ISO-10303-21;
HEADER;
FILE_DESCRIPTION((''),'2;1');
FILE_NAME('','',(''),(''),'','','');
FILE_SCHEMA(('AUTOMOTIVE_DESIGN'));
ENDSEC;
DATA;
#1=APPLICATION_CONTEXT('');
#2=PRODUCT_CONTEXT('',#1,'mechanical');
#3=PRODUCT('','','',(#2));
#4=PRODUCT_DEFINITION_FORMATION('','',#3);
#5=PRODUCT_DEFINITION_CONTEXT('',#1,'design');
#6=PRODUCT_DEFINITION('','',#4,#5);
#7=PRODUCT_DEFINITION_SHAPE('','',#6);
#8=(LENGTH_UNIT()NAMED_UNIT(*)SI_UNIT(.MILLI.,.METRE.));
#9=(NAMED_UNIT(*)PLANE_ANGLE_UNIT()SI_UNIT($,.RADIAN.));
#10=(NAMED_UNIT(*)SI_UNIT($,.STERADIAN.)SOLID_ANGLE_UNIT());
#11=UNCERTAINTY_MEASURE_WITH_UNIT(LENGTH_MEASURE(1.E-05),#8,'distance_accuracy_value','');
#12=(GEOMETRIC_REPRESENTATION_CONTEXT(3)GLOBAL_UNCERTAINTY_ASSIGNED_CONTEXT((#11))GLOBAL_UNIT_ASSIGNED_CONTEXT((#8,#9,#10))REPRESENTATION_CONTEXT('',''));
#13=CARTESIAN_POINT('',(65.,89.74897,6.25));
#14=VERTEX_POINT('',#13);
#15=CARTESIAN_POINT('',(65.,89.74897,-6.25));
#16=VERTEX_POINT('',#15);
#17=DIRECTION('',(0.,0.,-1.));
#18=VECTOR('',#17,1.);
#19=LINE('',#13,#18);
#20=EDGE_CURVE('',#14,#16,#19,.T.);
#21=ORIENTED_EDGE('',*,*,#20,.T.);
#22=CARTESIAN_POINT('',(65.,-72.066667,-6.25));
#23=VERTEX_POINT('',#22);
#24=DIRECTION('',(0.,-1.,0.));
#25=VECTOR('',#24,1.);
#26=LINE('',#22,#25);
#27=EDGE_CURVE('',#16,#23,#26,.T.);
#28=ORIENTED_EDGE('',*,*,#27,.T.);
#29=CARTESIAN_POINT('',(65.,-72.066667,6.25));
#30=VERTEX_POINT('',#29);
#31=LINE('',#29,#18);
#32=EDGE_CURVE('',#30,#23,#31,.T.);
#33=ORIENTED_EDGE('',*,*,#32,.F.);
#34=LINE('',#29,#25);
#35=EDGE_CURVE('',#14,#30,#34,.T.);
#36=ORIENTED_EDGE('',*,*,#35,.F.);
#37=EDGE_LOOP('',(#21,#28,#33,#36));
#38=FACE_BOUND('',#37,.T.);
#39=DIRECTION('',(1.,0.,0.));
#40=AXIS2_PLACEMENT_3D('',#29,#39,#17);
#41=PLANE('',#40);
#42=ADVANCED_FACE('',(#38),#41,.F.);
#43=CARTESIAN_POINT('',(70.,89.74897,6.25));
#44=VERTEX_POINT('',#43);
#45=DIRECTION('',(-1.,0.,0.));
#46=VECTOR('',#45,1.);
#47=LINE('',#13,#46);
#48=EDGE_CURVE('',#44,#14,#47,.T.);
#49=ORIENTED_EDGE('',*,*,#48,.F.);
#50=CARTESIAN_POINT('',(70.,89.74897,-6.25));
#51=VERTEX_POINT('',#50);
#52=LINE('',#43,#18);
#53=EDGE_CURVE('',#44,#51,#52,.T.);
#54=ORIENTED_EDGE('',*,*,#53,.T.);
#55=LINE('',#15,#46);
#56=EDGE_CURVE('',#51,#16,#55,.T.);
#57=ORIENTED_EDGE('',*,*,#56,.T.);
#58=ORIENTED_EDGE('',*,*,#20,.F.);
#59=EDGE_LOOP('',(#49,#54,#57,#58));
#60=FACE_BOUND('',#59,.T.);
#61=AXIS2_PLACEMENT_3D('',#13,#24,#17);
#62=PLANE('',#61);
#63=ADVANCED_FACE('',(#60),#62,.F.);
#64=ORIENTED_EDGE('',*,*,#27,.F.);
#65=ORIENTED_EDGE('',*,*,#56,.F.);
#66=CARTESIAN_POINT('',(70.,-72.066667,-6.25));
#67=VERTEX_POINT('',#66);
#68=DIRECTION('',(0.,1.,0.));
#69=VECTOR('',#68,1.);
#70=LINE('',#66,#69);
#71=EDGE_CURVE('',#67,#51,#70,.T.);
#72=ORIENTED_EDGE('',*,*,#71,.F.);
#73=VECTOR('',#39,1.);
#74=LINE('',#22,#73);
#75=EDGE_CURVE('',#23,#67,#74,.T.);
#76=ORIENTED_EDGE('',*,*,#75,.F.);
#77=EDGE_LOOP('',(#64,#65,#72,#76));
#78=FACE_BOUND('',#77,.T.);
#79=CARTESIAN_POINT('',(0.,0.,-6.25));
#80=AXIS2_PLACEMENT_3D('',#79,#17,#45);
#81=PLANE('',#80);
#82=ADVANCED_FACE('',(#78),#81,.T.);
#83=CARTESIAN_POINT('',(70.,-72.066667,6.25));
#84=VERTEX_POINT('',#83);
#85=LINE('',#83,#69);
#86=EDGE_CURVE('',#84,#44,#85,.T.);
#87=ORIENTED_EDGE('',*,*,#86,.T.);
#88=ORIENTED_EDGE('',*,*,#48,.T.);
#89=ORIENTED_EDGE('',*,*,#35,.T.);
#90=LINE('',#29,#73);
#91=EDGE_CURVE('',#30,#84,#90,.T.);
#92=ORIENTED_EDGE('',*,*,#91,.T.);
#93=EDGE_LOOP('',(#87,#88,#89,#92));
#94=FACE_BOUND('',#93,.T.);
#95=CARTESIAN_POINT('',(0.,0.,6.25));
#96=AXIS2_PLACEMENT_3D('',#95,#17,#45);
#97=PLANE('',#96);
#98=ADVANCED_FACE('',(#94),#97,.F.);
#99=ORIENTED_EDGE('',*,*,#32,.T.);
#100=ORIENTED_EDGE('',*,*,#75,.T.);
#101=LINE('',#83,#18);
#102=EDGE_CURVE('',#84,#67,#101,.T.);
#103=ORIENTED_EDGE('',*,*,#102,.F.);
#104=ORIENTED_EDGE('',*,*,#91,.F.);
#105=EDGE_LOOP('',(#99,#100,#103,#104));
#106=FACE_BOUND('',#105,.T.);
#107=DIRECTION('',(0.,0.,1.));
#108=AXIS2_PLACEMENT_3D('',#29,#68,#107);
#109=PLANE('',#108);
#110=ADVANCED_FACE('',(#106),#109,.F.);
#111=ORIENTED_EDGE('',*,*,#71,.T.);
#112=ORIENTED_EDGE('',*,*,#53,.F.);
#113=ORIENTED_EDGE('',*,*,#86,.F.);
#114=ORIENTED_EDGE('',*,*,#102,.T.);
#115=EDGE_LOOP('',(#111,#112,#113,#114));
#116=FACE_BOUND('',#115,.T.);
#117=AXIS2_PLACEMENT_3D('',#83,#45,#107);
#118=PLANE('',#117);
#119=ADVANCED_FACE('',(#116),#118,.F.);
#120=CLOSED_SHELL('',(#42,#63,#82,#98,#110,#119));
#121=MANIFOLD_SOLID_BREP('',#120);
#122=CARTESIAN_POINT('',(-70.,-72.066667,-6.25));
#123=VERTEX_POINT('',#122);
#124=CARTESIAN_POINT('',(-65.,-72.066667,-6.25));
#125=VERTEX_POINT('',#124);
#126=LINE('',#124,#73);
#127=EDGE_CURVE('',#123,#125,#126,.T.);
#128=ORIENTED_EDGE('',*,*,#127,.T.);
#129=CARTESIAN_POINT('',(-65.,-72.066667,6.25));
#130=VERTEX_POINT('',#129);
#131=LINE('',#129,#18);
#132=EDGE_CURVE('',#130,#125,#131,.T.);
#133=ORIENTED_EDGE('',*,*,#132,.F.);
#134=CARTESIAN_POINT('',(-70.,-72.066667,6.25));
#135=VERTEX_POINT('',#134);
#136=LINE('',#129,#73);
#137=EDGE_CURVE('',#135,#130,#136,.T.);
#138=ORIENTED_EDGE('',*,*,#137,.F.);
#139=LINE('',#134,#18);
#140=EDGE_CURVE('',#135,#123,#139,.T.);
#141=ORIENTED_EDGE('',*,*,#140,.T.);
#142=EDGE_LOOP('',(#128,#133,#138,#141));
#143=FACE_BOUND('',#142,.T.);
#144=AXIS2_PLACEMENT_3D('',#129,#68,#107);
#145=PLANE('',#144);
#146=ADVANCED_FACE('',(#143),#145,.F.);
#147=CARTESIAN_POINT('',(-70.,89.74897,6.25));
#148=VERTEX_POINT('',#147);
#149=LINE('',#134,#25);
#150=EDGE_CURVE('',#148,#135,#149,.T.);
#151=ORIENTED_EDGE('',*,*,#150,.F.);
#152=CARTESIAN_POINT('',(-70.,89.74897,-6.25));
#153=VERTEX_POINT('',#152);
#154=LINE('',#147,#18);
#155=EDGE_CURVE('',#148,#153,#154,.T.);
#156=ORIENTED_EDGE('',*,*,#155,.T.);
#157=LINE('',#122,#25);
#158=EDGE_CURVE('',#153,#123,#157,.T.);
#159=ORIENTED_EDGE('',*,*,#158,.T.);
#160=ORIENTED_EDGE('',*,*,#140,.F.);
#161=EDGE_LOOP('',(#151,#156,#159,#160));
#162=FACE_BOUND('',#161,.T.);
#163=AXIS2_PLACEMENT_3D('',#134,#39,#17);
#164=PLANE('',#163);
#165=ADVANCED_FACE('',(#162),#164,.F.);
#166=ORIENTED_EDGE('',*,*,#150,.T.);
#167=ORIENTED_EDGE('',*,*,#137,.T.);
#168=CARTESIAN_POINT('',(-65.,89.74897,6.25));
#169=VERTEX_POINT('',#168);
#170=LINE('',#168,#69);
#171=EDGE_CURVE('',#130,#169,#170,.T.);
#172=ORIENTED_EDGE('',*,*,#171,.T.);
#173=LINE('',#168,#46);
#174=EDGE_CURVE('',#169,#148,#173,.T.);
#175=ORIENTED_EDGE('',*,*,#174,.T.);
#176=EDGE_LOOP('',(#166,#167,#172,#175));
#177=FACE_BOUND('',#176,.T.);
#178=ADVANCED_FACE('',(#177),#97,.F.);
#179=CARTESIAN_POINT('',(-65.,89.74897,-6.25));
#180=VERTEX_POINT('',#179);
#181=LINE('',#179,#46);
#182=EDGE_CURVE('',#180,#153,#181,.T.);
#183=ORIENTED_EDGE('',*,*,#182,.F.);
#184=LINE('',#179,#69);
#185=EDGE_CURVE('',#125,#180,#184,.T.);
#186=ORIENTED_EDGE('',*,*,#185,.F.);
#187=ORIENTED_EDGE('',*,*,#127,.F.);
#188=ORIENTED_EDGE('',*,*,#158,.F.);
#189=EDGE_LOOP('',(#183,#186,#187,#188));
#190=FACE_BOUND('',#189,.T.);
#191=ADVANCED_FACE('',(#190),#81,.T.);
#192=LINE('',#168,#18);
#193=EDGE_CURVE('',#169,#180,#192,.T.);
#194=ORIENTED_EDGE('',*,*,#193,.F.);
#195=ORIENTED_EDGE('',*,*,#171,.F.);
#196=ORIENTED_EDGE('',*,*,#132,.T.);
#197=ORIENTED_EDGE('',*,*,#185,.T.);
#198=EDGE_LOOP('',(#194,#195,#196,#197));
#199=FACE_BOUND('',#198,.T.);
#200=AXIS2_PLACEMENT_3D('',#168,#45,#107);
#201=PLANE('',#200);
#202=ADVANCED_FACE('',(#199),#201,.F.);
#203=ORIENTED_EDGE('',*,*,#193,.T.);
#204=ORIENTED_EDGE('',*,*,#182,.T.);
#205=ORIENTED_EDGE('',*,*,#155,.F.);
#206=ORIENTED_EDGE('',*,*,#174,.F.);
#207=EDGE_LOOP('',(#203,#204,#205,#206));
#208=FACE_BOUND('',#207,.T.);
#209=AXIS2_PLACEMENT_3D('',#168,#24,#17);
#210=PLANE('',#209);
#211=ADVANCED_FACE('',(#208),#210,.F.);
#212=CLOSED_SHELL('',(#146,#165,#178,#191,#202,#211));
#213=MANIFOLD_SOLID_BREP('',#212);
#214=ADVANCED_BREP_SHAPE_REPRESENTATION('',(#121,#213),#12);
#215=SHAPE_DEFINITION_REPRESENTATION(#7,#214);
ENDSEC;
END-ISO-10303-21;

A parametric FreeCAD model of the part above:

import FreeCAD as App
import Part
import Sketcher
from FreeCAD import Vector
Q = App.Units.Quantity

doc = App.newDocument("Part")
body = doc.addObject("PartDesign::Body", "Body")

# Sketch on XY plane
sketch1 = doc.addObject("Sketcher::SketchObject", "Sketch")
body.addObject(sketch1)
sketch1.AttachmentSupport = (doc.XY_Plane, [""])
sketch1.MapMode = "FlatFace"
sketch1.addGeometry([
    Part.LineSegment(Vector(-70, 90, 0), Vector(-70, -72, 0)),
    Part.LineSegment(Vector(-70, -72, 0), Vector(-65, -72, 0)),
    Part.LineSegment(Vector(-65, -72, 0), Vector(-65, 90, 0)),
    Part.LineSegment(Vector(-65, 90, 0), Vector(-70, 90, 0)),
], False)
sketch1.addConstraint([
    Sketcher.Constraint("Coincident", 0, 2, 1, 1),
    Sketcher.Constraint("Coincident", 1, 2, 2, 1),
    Sketcher.Constraint("Coincident", 2, 2, 3, 1),
    Sketcher.Constraint("Coincident", 3, 2, 0, 1),
    Sketcher.Constraint("Vertical", 0),
    Sketcher.Constraint("Horizontal", 1),
    Sketcher.Constraint("Vertical", 2),
    Sketcher.Constraint("Horizontal", 3),
    Sketcher.Constraint("DistanceX", 1, 1, 1, 2, Q("5 mm")),
    Sketcher.Constraint("DistanceX", 0, 2, -1, 1, Q("70 mm")),
    Sketcher.Constraint("DistanceY", 0, 2, 0, 1, Q("161.815637 mm")),
    Sketcher.Constraint("DistanceY", -1, 1, 2, 2, Q("89.74897 mm")),
])
pad1 = doc.addObject("PartDesign::Pad", "Pad")
body.addObject(pad1)
pad1.Profile = sketch1
pad1.Length = 12.5
pad1.Midplane = True
body2 = doc.addObject("PartDesign::Body", "Body001")

# Sketch on XY plane
sketch2 = doc.addObject("Sketcher::SketchObject", "Sketch001")
body2.addObject(sketch2)
sketch2.AttachmentSupport = (doc.getObject("XY_Plane001"), [""])
sketch2.MapMode = "FlatFace"
sketch2.addGeometry([
    Part.LineSegment(Vector(65, 90, 0), Vector(65, -72, 0)),
    Part.LineSegment(Vector(65, -72, 0), Vector(70, -72, 0)),
    Part.LineSegment(Vector(70, -72, 0), Vector(70, 90, 0)),
    Part.LineSegment(Vector(70, 90, 0), Vector(65, 90, 0)),
], False)
sketch2.addConstraint([
    Sketcher.Constraint("Coincident", 0, 2, 1, 1),
    Sketcher.Constraint("Coincident", 1, 2, 2, 1),
    Sketcher.Constraint("Coincident", 2, 2, 3, 1),
    Sketcher.Constraint("Coincident", 3, 2, 0, 1),
    Sketcher.Constraint("Vertical", 0),
    Sketcher.Constraint("Horizontal", 1),
    Sketcher.Constraint("Vertical", 2),
    Sketcher.Constraint("Horizontal", 3),
    Sketcher.Constraint("DistanceX", 1, 1, 1, 2, Q("5 mm")),
    Sketcher.Constraint("DistanceX", -1, 1, 0, 2, Q("65 mm")),
    Sketcher.Constraint("DistanceY", 0, 2, 0, 1, Q("161.815637 mm")),
    Sketcher.Constraint("DistanceY", -1, 1, 2, 2, Q("89.74897 mm")),
])
pad2 = doc.addObject("PartDesign::Pad", "Pad001")
body2.addObject(pad2)
pad2.Profile = sketch2
pad2.Length = 12.5
pad2.Midplane = True

doc.recompute()
